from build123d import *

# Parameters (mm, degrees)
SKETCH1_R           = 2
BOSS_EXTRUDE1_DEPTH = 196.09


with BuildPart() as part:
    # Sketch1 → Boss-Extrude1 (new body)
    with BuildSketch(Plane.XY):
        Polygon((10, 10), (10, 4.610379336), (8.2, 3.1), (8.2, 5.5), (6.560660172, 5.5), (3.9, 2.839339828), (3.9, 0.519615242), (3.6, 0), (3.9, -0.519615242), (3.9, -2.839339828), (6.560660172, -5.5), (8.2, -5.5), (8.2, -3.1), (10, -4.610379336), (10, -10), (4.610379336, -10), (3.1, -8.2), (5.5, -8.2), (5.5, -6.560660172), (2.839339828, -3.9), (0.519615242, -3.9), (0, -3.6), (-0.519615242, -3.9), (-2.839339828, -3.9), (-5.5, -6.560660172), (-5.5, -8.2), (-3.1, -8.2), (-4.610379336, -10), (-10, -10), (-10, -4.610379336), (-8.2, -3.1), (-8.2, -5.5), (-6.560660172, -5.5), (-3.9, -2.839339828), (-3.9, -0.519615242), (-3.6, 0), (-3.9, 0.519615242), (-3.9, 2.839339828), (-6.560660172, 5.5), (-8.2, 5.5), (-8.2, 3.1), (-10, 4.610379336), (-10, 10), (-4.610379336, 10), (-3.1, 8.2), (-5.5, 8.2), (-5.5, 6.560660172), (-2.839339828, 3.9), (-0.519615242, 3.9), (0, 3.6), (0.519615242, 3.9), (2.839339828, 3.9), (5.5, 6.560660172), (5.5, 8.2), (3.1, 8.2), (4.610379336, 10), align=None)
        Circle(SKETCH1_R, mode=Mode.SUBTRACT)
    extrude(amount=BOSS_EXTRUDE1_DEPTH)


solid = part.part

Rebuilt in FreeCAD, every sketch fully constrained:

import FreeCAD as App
import Part
import Sketcher
from FreeCAD import Vector
Q = App.Units.Quantity


def add_polygon(sketch, points):
    """Adds a closed chain of lines whose ends are joined by coincident constraints."""
    first, n = sketch.GeometryCount, len(points)
    for a, b in zip(points, points[1:] + points[:1]):
        sketch.addGeometry(Part.LineSegment(App.Vector(*a, 0), App.Vector(*b, 0)), False)
    for i in range(n):
        sketch.addConstraint(Sketcher.Constraint("Coincident", first + i, 2, first + (i + 1) % n, 1))

doc = App.newDocument("Part")
body = doc.addObject("PartDesign::Body", "Body")

# Sketch on XY plane
sketch1 = doc.addObject("Sketcher::SketchObject", "Sketch")
body.addObject(sketch1)
sketch1.AttachmentSupport = (doc.XY_Plane, [""])
sketch1.MapMode = "FlatFace"
add_polygon(sketch1, [(10, 4.6), (10, 10), (4.6, 10), (3.1, 8.2), (5.5, 8.2), (5.5, 6.6), (2.8, 3.9), (0.5, 3.9), (0, 3.6), (-0.5, 3.9), (-2.8, 3.9), (-5.5, 6.6), (-5.5, 8.2), (-3.1, 8.2), (-4.6, 10), (-10, 10), (-10, 4.6), (-8.2, 3.1), (-8.2, 5.5), (-6.6, 5.5), (-3.9, 2.8), (-3.9, 0.5), (-3.6, 0), (-3.9, -0.5), (-3.9, -2.8), (-6.6, -5.5), (-8.2, -5.5), (-8.2, -3.1), (-10, -4.6), (-10, -10), (-4.6, -10), (-3.1, -8.2), (-5.5, -8.2), (-5.5, -6.6), (-2.8, -3.9), (-0.5, -3.9), (0, -3.6), (0.5, -3.9), (2.8, -3.9), (5.5, -6.6), (5.5, -8.2), (3.1, -8.2), (4.6, -10), (10, -10), (10, -4.6), (8.2, -3.1), (8.2, -5.5), (6.6, -5.5), (3.9, -2.8), (3.9, -0.5), (3.6, 0), (3.9, 0.5), (3.9, 2.8), (6.6, 5.5), (8.2, 5.5), (8.2, 3.1)])  # lines 0-55
sketch1.addGeometry(Part.Circle(Vector(0, 0, 0), Vector(0, 0, 1), 2), False)  # 56
sketch1.addConstraint([
    Sketcher.Constraint("Vertical", 0),
    Sketcher.Constraint("Horizontal", 1),
    Sketcher.Constraint("Horizontal", 3),
    Sketcher.Constraint("Vertical", 4),
    Sketcher.Constraint("Horizontal", 6),
    Sketcher.Constraint("Horizontal", 9),
    Sketcher.Constraint("Vertical", 11),
    Sketcher.Constraint("Horizontal", 12),
    Sketcher.Constraint("Horizontal", 14),
    Sketcher.Constraint("Vertical", 15),
    Sketcher.Constraint("Vertical", 17),
    Sketcher.Constraint("Horizontal", 18),
    Sketcher.Constraint("Vertical", 20),
    Sketcher.Constraint("Vertical", 23),
    Sketcher.Constraint("Horizontal", 25),
    Sketcher.Constraint("Vertical", 26),
    Sketcher.Constraint("Vertical", 28),
    Sketcher.Constraint("Horizontal", 29),
    Sketcher.Constraint("Horizontal", 31),
    Sketcher.Constraint("Vertical", 32),
    Sketcher.Constraint("Horizontal", 34),
    Sketcher.Constraint("Horizontal", 37),
    Sketcher.Constraint("Vertical", 39),
    Sketcher.Constraint("Horizontal", 40),
    Sketcher.Constraint("Horizontal", 42),
    Sketcher.Constraint("Vertical", 43),
    Sketcher.Constraint("Vertical", 45),
    Sketcher.Constraint("Horizontal", 46),
    Sketcher.Constraint("Vertical", 48),
    Sketcher.Constraint("Vertical", 51),
    Sketcher.Constraint("Horizontal", 53),
    Sketcher.Constraint("Vertical", 54),
    Sketcher.Constraint("Coincident", 56, 3, -1, 1),
    Sketcher.Constraint("Symmetric", 0, 2, 28, 2, -1, 1),
    Sketcher.Constraint("Symmetric", 2, 2, 30, 2, -1, 1),
    Sketcher.Constraint("Symmetric", 4, 2, 32, 2, -1, 1),
    Sketcher.Constraint("Symmetric", 5, 2, 33, 2, -1, 1),
    Sketcher.Constraint("Symmetric", 7, 2, 35, 2, -1, 1),
    Sketcher.Constraint("Symmetric", 8, 2, 36, 2, -1, 1),
    Sketcher.Constraint("Symmetric", 10, 2, 38, 2, -1, 1),
    Sketcher.Constraint("Symmetric", 12, 2, 40, 2, -1, 1),
    Sketcher.Constraint("Symmetric", 13, 2, 41, 2, -1, 1),
    Sketcher.Constraint("Symmetric", 15, 2, 43, 2, -1, 1),
    Sketcher.Constraint("Symmetric", 16, 2, 44, 2, -1, 1),
    Sketcher.Constraint("Symmetric", 18, 2, 46, 2, -1, 1),
    Sketcher.Constraint("Symmetric", 19, 2, 47, 2, -1, 1),
    Sketcher.Constraint("Symmetric", 21, 2, 49, 2, -1, 1),
    Sketcher.Constraint("Symmetric", 22, 2, 50, 2, -1, 1),
    Sketcher.Constraint("Symmetric", 24, 2, 52, 2, -1, 1),
    Sketcher.Constraint("Symmetric", 26, 2, 54, 2, -1, 1),
    Sketcher.Constraint("Symmetric", 6, 2, 8, 2, -2),
    Sketcher.Constraint("Symmetric", 4, 2, 10, 2, -2),
    Sketcher.Constraint("Symmetric", 2, 2, 12, 2, -2),
    Sketcher.Constraint("Symmetric", 1, 2, 13, 2, -2),
    Sketcher.Constraint("Symmetric", 27, 2, 43, 2, -2),
    Sketcher.Constraint("Symmetric", 26, 2, 44, 2, -2),
    Sketcher.Constraint("Symmetric", 24, 2, 46, 2, -2),
    Sketcher.Constraint("Symmetric", 23, 2, 47, 2, -2),
    Sketcher.Constraint("PointOnObject", 7, 2, -2),
    Sketcher.Constraint("PointOnObject", 21, 2, -1),
    Sketcher.Constraint("Perpendicular", 5, 10),
    Sketcher.Constraint("Perpendicular", 2, 16),
    Sketcher.Constraint("Parallel", 10, 19),
    Sketcher.Constraint("Perpendicular", 7, 21),
    Sketcher.Constraint("Perpendicular", 8, 22),
    Sketcher.Constraint("Perpendicular", 19, 24),
    Sketcher.Constraint("Perpendicular", 16, 30),
    Sketcher.Constraint("Perpendicular", 21, 35),
    Sketcher.Constraint("Perpendicular", 33, 38),
    Sketcher.Constraint("Perpendicular", 35, 49),
    Sketcher.Constraint("Perpendicular", 47, 52),
    Sketcher.Constraint("Perpendicular", 41, 55),
    Sketcher.Constraint("Equal", 42, 0),
    Sketcher.Constraint("Equal", 53, 4),
    Sketcher.Constraint("Equal", 40, 17),
    Sketcher.Constraint("Equal", 37, 20),
    Sketcher.Constraint("Equal", 13, 16),
    Sketcher.Constraint("Equal", 10, 19),
    Sketcher.Constraint("Equal", 8, 21),
    Sketcher.Constraint("Diameter", 56, Q("4 mm")),
    Sketcher.Constraint("Angle", 2, Q("-130 deg")),
    Sketcher.Constraint("Angle", 7, Q("-150 deg")),
    Sketcher.Constraint("DistanceX", 3, 1, 3, 2, Q("2.4 mm")),
    Sketcher.Constraint("DistanceX", -1, 1, 0, 2, Q("10 mm")),
    Sketcher.Constraint("Distance", 7, Q("0.6 mm")),
    Sketcher.Constraint("DistanceX", -1, 1, 2, 2, Q("3.1 mm")),
    Sketcher.Constraint("DistanceY", -1, 1, 2, 2, Q("8.2 mm")),
    Sketcher.Constraint("DistanceY", -1, 1, 5, 2, Q("3.9 mm")),
    Sketcher.Constraint("DistanceX", 18, 1, 18, 2, Q("1.63934 mm")),
])
pad1 = doc.addObject("PartDesign::Pad", "Pad")
body.addObject(pad1)
pad1.Profile = sketch1
pad1.Length = 196.09

doc.recompute()
